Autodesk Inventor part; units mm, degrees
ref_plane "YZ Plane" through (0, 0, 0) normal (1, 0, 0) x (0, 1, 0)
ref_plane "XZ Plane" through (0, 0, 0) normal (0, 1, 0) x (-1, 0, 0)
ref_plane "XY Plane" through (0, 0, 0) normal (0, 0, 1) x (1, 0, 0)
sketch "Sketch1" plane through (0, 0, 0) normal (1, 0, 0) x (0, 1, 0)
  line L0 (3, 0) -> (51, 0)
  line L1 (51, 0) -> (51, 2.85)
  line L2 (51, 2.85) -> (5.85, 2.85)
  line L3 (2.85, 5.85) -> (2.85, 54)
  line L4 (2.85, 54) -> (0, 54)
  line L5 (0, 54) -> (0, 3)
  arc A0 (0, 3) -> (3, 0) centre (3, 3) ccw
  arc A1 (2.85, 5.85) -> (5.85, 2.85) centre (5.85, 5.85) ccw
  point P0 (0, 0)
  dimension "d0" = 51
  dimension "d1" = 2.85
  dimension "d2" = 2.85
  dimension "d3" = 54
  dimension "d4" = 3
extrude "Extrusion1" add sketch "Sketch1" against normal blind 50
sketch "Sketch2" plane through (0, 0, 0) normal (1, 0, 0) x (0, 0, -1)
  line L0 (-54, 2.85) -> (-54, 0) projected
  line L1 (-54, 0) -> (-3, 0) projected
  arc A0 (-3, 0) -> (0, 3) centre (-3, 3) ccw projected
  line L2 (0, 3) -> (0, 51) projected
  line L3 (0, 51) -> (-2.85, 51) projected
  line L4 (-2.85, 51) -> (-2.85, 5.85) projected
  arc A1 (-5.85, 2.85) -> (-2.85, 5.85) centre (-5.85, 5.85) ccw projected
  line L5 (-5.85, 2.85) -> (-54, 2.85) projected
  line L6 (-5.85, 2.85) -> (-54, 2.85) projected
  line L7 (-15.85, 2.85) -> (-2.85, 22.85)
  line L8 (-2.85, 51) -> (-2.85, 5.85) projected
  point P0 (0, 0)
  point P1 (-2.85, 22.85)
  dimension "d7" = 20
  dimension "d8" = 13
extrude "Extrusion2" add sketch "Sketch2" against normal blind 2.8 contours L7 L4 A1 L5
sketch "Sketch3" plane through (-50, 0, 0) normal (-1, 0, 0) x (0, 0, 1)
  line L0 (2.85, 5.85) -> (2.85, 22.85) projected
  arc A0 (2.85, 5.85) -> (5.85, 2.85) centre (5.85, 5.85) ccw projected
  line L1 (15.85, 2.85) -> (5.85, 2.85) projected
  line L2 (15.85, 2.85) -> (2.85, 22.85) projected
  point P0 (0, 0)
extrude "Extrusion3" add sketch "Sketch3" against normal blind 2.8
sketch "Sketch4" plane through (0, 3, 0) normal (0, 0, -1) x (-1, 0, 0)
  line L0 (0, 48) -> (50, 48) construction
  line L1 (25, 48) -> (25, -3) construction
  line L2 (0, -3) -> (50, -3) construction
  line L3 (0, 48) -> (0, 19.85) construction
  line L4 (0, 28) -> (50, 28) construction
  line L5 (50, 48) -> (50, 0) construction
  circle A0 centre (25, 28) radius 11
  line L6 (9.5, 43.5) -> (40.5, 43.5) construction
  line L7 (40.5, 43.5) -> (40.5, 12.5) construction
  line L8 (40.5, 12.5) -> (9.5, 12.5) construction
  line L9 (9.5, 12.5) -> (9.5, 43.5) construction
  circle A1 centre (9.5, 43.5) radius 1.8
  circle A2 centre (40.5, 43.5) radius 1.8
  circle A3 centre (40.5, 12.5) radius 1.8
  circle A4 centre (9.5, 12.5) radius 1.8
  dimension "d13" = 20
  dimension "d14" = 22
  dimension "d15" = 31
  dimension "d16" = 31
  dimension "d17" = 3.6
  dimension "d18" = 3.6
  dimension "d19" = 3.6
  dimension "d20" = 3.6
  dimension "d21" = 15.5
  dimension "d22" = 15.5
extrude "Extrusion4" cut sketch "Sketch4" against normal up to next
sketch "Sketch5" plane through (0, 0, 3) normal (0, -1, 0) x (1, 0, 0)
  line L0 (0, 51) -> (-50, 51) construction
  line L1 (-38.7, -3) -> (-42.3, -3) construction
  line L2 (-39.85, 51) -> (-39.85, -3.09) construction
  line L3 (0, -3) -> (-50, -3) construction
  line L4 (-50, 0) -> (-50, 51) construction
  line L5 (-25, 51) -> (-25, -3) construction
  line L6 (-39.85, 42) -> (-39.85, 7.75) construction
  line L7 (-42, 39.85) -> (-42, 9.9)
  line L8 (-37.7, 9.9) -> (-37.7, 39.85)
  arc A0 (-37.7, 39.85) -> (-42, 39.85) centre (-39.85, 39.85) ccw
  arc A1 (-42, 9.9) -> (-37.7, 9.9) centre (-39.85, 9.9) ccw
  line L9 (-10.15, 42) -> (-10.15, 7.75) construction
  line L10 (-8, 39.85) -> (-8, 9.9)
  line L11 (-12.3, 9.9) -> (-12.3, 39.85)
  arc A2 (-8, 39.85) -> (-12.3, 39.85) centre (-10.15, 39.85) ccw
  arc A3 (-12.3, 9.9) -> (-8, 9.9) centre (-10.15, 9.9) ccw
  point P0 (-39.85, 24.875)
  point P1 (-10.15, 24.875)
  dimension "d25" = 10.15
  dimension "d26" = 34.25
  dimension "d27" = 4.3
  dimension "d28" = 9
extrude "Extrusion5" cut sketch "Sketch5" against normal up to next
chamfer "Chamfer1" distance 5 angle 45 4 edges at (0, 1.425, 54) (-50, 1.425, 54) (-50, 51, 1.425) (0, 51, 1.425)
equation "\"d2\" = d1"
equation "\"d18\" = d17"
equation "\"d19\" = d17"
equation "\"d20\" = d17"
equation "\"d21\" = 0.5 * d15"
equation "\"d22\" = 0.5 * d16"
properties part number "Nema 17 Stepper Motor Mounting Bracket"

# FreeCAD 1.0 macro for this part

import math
import FreeCAD as App
import Part
import Sketcher
from FreeCAD import Vector
Q = App.Units.Quantity


def edges_at(feature, points):
    """Names of the edges that pass closest to the given points."""
    edges = feature.Shape.Edges
    near = lambda p: min(range(len(edges)), key=lambda i: edges[i].distToShape(Part.Vertex(*p))[0])
    return sorted({f"Edge{near(p) + 1}" for p in points})

doc = App.newDocument("Part")
body = doc.addObject("PartDesign::Body", "Body")

sketch1 = body.newObject("Sketcher::SketchObject", "Sketch")
sketch1.AttachmentSupport = (doc.getObject("YZ_Plane"), [""])
sketch1.MapMode = "FlatFace"
sketch1.addGeometry([
    Part.ArcOfCircle(Part.Circle(Vector(3, 3, 0), Vector(0, 0, 1), 3), math.radians(180), math.radians(270)),
    Part.LineSegment(Vector(3, 0, 0), Vector(51, 0, 0)),
    Part.LineSegment(Vector(51, 0, 0), Vector(51, 2.9, 0)),
    Part.LineSegment(Vector(51, 2.9, 0), Vector(5.8, 2.9, 0)),
    Part.ArcOfCircle(Part.Circle(Vector(5.8, 5.8, 0), Vector(0, 0, 1), 3), math.radians(180), math.radians(270)),
    Part.LineSegment(Vector(2.9, 5.8, 0), Vector(2.9, 54, 0)),
    Part.LineSegment(Vector(2.9, 54, 0), Vector(0, 54, 0)),
    Part.LineSegment(Vector(0, 54, 0), Vector(0, 3, 0)),
], False)
sketch1.addConstraint([
    Sketcher.Constraint("Tangent", 0, 2, 1, 1),
    Sketcher.Constraint("Coincident", 1, 2, 2, 1),
    Sketcher.Constraint("Coincident", 2, 2, 3, 1),
    Sketcher.Constraint("Tangent", 3, 2, 4, 2),
    Sketcher.Constraint("Tangent", 4, 1, 5, 1),
    Sketcher.Constraint("Coincident", 5, 2, 6, 1),
    Sketcher.Constraint("Coincident", 6, 2, 7, 1),
    Sketcher.Constraint("Tangent", 7, 2, 0, 1),
    Sketcher.Constraint("Horizontal", 1),
    Sketcher.Constraint("Vertical", 2),
    Sketcher.Constraint("Horizontal", 3),
    Sketcher.Constraint("Vertical", 5),
    Sketcher.Constraint("Horizontal", 6),
    Sketcher.Constraint("Vertical", 7),
    Sketcher.Constraint("Equal", 0, 4),
    Sketcher.Constraint("PointOnObject", 0, 2, -1),
    Sketcher.Constraint("PointOnObject", 6, 2, -2),
    Sketcher.Constraint("Equal", 6, 2),
    Sketcher.Constraint("Radius", 0, Q("3 mm")),
    Sketcher.Constraint("DistanceY", 7, 2, 7, 1, Q("51 mm")),
    Sketcher.Constraint("DistanceX", -1, 1, 1, 2, Q("51 mm")),
    Sketcher.Constraint("DistanceX", 6, 2, 6, 1, Q("2.85 mm")),
])
pad1 = body.newObject("PartDesign::Pad", "Pad")
pad1.Profile = sketch1
pad1.Length = 50
pad1.Reversed = True

sketch2 = body.newObject("Sketcher::SketchObject", "Sketch001")
sketch2.AttachmentSupport = (doc.getObject("YZ_Plane"), [""])
sketch2.MapMode = "FlatFace"
sketch2.addGeometry([
    Part.LineSegment(Vector(22.9, 2.9, 0), Vector(2.9, 15.8, 0)),
    Part.LineSegment(Vector(2.9, 15.8, 0), Vector(2.9, 5.8, 0)),
    Part.ArcOfCircle(Part.Circle(Vector(5.8, 5.8, 0), Vector(0, 0, 1), 3), math.radians(180), math.radians(270)),
    Part.LineSegment(Vector(5.8, 2.9, 0), Vector(22.9, 2.9, 0)),
], False)
sketch2.addConstraint([
    Sketcher.Constraint("Coincident", 0, 2, 1, 1),
    Sketcher.Constraint("Tangent", 1, 2, 2, 1),
    Sketcher.Constraint("Tangent", 2, 2, 3, 1),
    Sketcher.Constraint("Coincident", 3, 2, 0, 1),
    Sketcher.Constraint("Vertical", 1),
    Sketcher.Constraint("Horizontal", 3),
    Sketcher.Constraint("Radius", 2, Q("3 mm")),
    Sketcher.Constraint("DistanceY", 2, 2, 0, 2, Q("13 mm")),
    Sketcher.Constraint("DistanceX", 1, 2, 3, 2, Q("20 mm")),
    Sketcher.Constraint("DistanceX", -1, 1, 2, 3, Q("5.85 mm")),
    Sketcher.Constraint("DistanceY", -1, 1, 2, 3, Q("5.85 mm")),
])
pad2 = body.newObject("PartDesign::Pad", "Pad001")
pad2.Profile = sketch2
pad2.Length = 2.8
pad2.Reversed = True

sketch3 = body.newObject("Sketcher::SketchObject", "Sketch002")
sketch3.AttachmentSupport = (doc.getObject("YZ_Plane"), [""])
sketch3.MapMode = "FlatFace"
sketch3.AttachmentOffset = App.Placement(Vector(0, 0, -50), App.Rotation())
sketch3.addGeometry([
    Part.LineSegment(Vector(22.9, 2.9, 0), Vector(5.8, 2.9, 0)),
    Part.ArcOfCircle(Part.Circle(Vector(5.8, 5.8, 0), Vector(0, 0, 1), 3), math.radians(180), math.radians(270)),
    Part.LineSegment(Vector(2.9, 5.8, 0), Vector(2.9, 15.8, 0)),
    Part.LineSegment(Vector(2.9, 15.8, 0), Vector(22.9, 2.9, 0)),
], False)
sketch3.addConstraint([
    Sketcher.Constraint("Tangent", 0, 2, 1, 2),
    Sketcher.Constraint("Tangent", 1, 1, 2, 1),
    Sketcher.Constraint("Coincident", 2, 2, 3, 1),
    Sketcher.Constraint("Coincident", 3, 2, 0, 1),
    Sketcher.Constraint("Horizontal", 0),
    Sketcher.Constraint("Vertical", 2),
    Sketcher.Constraint("Radius", 1, Q("3 mm")),
    Sketcher.Constraint("DistanceX", 0, 2, 0, 1, Q("17 mm")),
    Sketcher.Constraint("DistanceY", 2, 1, 2, 2, Q("10 mm")),
    Sketcher.Constraint("DistanceX", -1, 1, 1, 3, Q("5.85 mm")),
    Sketcher.Constraint("DistanceY", -1, 1, 1, 3, Q("5.85 mm")),
])
pad3 = body.newObject("PartDesign::Pad", "Pad002")
pad3.Profile = sketch3
pad3.Length = 2.8

sketch4 = body.newObject("Sketcher::SketchObject", "Sketch003")
sketch4.AttachmentSupport = (doc.getObject("XY_Plane"), [""])
sketch4.MapMode = "FlatFace"
sketch4.addGeometry([
    Part.Circle(Vector(-25, 31, 0), Vector(0, 0, 1), 11),
    Part.Circle(Vector(-9.5, 46.5, 0), Vector(0, 0, 1), 1.8),
    Part.Circle(Vector(-40.5, 46.5, 0), Vector(0, 0, 1), 1.8),
    Part.Circle(Vector(-40.5, 15.5, 0), Vector(0, 0, 1), 1.8),
    Part.Circle(Vector(-9.5, 15.5, 0), Vector(0, 0, 1), 1.8),
], False)
sketch4.addConstraint([
    Sketcher.Constraint("Equal", 1, 2),
    Sketcher.Constraint("Equal", 2, 3),
    Sketcher.Constraint("Equal", 3, 4),
    Sketcher.Constraint("Horizontal", 1, 3, 2, 3),
    Sketcher.Constraint("Horizontal", 3, 3, 4, 3),
    Sketcher.Constraint("Vertical", 2, 3, 3, 3),
    Sketcher.Constraint("Vertical", 1, 3, 4, 3),
    Sketcher.Constraint("Diameter", 0, Q("22 mm")),
    Sketcher.Constraint("Diameter", 1, Q("3.6 mm")),
    Sketcher.Constraint("DistanceY", -1, 1, 0, 3, Q("31 mm")),
    Sketcher.Constraint("DistanceX", 2, 3, 1, 3, Q("31 mm")),
    Sketcher.Constraint("DistanceY", 3, 3, 2, 3, Q("31 mm")),
    Sketcher.Constraint("DistanceY", -1, 1, 3, 3, Q("15.5 mm")),
    Sketcher.Constraint("DistanceX", 0, 3, 1, 3, Q("15.5 mm")),
    Sketcher.Constraint("DistanceX", 0, 3, -1, 1, Q("25 mm")),
])
pocket1 = body.newObject("PartDesign::Pocket", "Pocket")
pocket1.Profile = sketch4
pocket1.Type = "UpToFirst"
pocket1.Reversed = True

sketch5 = body.newObject("Sketcher::SketchObject", "Sketch004")
sketch5.AttachmentSupport = (doc.getObject("XZ_Plane"), [""])
sketch5.MapMode = "FlatFace"
sketch5.addGeometry([
    Part.ArcOfCircle(Part.Circle(Vector(-39.9, 42.9, 0), Vector(0, 0, 1), 2.1), math.radians(0), math.radians(180)),
    Part.LineSegment(Vector(-42, 42.9, 0), Vector(-42, 12.9, 0)),
    Part.ArcOfCircle(Part.Circle(Vector(-39.9, 12.9, 0), Vector(0, 0, 1), 2.1), math.radians(180), math.radians(360)),
    Part.LineSegment(Vector(-37.7, 12.9, 0), Vector(-37.7, 42.9, 0)),
    Part.LineSegment(Vector(-8, 12.9, 0), Vector(-8, 42.9, 0)),
    Part.ArcOfCircle(Part.Circle(Vector(-10.2, 42.9, 0), Vector(0, 0, 1), 2.2), math.radians(0), math.radians(180)),
    Part.LineSegment(Vector(-12.3, 42.9, 0), Vector(-12.3, 12.9, 0)),
    Part.ArcOfCircle(Part.Circle(Vector(-10.2, 12.9, 0), Vector(0, 0, 1), 2.2), math.radians(180), math.radians(360)),
], False)
sketch5.addConstraint([
    Sketcher.Constraint("Tangent", 0, 2, 1, 1),
    Sketcher.Constraint("Tangent", 1, 2, 2, 1),
    Sketcher.Constraint("Tangent", 2, 2, 3, 1),
    Sketcher.Constraint("Tangent", 3, 2, 0, 1),
    Sketcher.Constraint("Tangent", 4, 2, 5, 1),
    Sketcher.Constraint("Tangent", 5, 2, 6, 1),
    Sketcher.Constraint("Tangent", 6, 2, 7, 1),
    Sketcher.Constraint("Tangent", 7, 2, 4, 1),
    Sketcher.Constraint("Vertical", 1),
    Sketcher.Constraint("Vertical", 3),
    Sketcher.Constraint("Vertical", 4),
    Sketcher.Constraint("Vertical", 6),
    Sketcher.Constraint("Equal", 2, 5),
    Sketcher.Constraint("Horizontal", 0, 3, 5, 3),
    Sketcher.Constraint("Horizontal", 2, 3, 7, 3),
    Sketcher.Constraint("Radius", 0, Q("2.15 mm")),
    Sketcher.Constraint("DistanceX", 5, 3, -1, 1, Q("10.15 mm")),
    Sketcher.Constraint("DistanceX", 0, 2, -1, 1, Q("42 mm")),
    Sketcher.Constraint("DistanceY", 1, 2, 1, 1, Q("29.95 mm")),
    Sketcher.Constraint("DistanceY", -1, 1, 2, 3, Q("12.9 mm")),
])
pocket2 = body.newObject("PartDesign::Pocket", "Pocket001")
pocket2.Profile = sketch5
pocket2.Type = "UpToFirst"
doc.recompute()

chamfer = body.newObject("PartDesign::Chamfer", "Chamfer")
chamfer.Base = (pocket2, edges_at(pocket2, [
    (0, 1.425, 54),
    (-50, 1.425, 54),
    (-50, 51, 1.425),
    (0, 51, 1.425),
]))
chamfer.Size = 5

doc.recompute()
